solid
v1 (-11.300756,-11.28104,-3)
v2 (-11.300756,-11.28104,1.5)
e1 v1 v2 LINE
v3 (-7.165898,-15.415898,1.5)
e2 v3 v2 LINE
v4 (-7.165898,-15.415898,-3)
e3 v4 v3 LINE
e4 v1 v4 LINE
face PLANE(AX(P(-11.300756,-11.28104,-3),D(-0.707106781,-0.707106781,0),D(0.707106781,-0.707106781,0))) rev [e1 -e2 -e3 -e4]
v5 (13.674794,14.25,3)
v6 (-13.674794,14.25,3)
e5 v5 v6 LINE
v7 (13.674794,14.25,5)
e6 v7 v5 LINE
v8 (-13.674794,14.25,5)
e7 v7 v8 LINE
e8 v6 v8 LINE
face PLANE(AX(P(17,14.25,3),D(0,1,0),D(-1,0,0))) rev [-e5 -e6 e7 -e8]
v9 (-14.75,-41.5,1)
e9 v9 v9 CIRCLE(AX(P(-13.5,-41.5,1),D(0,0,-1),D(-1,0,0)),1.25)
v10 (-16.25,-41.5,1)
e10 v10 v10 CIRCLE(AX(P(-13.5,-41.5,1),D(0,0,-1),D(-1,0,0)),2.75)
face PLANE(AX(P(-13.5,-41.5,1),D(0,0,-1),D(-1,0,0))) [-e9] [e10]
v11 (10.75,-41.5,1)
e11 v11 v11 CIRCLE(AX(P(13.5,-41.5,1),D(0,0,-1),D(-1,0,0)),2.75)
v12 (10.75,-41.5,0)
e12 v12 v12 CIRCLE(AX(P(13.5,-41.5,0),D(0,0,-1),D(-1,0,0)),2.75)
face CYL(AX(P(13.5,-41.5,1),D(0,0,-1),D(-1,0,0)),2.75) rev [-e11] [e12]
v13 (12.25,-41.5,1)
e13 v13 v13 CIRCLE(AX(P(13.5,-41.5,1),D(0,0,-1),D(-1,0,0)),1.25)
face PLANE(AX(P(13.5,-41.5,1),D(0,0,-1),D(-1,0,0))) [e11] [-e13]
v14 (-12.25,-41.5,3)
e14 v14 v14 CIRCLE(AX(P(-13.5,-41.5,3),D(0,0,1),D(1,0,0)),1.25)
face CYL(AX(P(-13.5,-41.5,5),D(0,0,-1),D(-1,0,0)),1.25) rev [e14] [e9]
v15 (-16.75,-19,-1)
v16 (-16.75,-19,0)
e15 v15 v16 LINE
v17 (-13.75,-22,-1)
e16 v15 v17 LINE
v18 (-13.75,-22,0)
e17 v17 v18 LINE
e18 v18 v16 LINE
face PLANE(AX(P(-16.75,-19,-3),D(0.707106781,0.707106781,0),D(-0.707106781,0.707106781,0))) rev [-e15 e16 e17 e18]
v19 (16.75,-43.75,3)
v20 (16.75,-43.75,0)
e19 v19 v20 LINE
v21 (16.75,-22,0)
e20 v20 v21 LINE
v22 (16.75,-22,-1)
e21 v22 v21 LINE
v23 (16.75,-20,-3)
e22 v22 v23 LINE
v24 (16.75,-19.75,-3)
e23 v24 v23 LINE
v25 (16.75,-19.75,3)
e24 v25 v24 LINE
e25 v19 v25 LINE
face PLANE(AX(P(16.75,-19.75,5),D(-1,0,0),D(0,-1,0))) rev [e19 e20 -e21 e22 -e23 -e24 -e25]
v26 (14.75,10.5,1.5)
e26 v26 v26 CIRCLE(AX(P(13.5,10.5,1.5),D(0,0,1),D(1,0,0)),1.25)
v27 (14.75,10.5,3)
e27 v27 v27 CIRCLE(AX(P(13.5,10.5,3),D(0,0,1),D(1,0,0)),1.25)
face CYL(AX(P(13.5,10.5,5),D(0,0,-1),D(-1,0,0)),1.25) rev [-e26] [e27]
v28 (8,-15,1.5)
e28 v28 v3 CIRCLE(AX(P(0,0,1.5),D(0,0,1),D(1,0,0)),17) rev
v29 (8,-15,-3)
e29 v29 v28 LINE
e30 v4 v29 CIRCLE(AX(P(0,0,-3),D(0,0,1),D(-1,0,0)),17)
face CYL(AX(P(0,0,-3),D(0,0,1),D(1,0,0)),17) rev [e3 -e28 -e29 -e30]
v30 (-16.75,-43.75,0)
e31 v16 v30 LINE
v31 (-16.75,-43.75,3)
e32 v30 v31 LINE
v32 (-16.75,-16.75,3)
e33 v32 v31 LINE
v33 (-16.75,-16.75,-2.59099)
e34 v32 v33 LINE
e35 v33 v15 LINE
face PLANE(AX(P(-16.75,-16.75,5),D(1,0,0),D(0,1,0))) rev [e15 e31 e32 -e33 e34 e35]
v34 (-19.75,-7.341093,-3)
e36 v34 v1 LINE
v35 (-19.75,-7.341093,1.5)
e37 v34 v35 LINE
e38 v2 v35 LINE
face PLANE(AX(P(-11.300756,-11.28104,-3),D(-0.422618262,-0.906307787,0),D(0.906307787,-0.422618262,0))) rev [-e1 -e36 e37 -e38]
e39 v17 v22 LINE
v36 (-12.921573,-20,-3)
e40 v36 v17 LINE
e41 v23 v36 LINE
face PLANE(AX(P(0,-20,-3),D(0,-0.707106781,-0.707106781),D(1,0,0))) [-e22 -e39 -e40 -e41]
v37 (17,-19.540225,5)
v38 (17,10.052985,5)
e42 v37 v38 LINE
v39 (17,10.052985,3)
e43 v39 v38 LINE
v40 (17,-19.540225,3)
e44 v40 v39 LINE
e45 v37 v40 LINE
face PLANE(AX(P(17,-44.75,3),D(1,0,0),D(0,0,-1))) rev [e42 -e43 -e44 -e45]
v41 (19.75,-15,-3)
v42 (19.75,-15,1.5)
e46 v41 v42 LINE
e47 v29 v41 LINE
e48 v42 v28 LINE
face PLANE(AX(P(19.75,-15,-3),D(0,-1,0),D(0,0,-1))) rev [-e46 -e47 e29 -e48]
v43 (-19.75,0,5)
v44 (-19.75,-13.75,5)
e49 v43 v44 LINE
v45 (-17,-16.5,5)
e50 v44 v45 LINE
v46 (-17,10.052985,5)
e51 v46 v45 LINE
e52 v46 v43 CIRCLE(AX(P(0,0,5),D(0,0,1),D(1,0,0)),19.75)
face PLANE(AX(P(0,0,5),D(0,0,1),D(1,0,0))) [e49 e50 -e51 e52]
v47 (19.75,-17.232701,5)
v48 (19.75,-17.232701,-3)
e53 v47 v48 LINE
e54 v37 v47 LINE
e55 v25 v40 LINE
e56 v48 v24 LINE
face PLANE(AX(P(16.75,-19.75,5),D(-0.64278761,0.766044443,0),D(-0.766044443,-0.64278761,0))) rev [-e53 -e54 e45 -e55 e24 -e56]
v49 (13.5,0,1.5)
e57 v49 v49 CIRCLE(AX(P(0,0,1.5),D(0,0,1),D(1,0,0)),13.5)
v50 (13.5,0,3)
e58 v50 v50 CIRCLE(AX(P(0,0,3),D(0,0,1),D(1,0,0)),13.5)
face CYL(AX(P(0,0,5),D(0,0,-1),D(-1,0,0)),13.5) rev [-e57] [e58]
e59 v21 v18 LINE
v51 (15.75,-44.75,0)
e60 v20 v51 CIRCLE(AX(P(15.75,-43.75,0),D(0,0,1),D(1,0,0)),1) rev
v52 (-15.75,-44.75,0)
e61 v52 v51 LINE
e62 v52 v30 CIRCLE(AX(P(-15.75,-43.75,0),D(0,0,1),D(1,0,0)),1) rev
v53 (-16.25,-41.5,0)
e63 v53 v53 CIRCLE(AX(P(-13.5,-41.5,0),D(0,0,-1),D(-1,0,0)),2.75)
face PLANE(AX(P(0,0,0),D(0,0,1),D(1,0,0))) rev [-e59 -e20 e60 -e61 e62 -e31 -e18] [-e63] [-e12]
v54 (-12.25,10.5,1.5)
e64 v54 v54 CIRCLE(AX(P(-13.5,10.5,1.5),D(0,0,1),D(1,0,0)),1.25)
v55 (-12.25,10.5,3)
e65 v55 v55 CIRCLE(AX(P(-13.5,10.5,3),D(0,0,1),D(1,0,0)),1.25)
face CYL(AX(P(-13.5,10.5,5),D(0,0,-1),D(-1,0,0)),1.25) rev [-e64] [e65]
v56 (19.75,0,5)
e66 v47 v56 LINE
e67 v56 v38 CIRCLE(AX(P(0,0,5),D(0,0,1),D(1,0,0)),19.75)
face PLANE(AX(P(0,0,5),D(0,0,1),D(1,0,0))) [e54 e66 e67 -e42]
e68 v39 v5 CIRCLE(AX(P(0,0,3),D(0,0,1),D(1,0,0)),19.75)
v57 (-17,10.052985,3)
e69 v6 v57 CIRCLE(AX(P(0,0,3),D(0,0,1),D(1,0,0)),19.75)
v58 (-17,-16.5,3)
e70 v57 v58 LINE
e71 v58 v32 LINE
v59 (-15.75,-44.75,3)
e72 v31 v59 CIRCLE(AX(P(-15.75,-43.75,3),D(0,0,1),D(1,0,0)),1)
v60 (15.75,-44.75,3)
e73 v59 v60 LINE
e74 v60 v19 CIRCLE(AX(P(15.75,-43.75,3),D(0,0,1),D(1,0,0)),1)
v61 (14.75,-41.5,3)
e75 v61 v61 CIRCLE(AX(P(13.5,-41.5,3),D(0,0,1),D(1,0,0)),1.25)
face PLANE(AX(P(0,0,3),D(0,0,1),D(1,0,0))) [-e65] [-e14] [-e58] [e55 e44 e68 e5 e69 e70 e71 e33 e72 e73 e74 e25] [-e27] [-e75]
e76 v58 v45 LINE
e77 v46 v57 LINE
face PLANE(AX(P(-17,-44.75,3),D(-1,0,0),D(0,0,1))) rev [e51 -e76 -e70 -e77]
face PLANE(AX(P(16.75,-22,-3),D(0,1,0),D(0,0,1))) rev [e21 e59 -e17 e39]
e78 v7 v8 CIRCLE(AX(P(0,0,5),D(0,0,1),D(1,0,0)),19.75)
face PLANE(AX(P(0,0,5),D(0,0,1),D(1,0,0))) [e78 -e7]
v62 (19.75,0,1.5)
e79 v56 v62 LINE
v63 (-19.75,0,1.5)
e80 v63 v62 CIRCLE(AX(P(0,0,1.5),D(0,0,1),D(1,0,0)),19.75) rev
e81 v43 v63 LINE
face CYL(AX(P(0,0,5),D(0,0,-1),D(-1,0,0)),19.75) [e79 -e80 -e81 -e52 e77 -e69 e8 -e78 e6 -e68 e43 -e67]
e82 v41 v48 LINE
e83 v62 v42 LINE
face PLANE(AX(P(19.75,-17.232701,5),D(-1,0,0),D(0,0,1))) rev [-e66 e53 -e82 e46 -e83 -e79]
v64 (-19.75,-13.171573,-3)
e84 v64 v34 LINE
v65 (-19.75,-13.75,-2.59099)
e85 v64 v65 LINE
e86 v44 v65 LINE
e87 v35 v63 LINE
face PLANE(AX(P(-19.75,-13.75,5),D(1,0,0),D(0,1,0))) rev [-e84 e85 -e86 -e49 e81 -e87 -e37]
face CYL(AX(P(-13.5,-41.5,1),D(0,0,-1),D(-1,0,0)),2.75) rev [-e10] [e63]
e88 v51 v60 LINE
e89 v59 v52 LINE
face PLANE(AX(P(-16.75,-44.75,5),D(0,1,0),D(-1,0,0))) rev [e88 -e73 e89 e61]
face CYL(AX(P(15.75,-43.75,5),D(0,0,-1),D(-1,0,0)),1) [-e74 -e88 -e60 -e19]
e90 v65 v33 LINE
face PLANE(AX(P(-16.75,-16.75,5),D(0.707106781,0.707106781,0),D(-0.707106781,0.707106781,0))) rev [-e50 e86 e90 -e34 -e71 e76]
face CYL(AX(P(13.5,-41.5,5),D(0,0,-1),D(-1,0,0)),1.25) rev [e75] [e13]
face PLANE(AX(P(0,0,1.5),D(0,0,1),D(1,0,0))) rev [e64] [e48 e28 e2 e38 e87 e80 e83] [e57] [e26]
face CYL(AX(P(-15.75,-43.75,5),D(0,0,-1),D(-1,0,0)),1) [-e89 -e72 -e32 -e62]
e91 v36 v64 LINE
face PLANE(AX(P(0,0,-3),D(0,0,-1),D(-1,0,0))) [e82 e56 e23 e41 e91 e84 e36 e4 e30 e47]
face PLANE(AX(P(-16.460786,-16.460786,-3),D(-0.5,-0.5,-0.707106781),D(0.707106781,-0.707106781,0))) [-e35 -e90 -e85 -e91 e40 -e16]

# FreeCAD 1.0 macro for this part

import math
import FreeCAD as App
import Part
import Sketcher
from FreeCAD import Vector
Q = App.Units.Quantity


def edges_at(feature, points):
    """Names of the edges that pass closest to the given points."""
    edges = feature.Shape.Edges
    near = lambda p: min(range(len(edges)), key=lambda i: edges[i].distToShape(Part.Vertex(*p))[0])
    return sorted({f"Edge{near(p) + 1}" for p in points})

doc = App.newDocument("Part")
body = doc.addObject("PartDesign::Body", "Body")

# Sketch on XY plane
sketch1 = body.newObject("Sketcher::SketchObject", "Sketch")
sketch1.AttachmentSupport = (doc.getObject("XY_Plane"), [""])
sketch1.MapMode = "FlatFace"
sketch1.addGeometry([
    Part.LineSegment(Vector(-16.75, -16.75, 0), Vector(-16.75, -44.75, 0)),  # 0
    Part.LineSegment(Vector(-16.75, -44.75, 0), Vector(16.75, -44.75, 0)),  # 1
    Part.LineSegment(Vector(16.75, -44.75, 0), Vector(16.75, -19.75, 0)),  # 2
    Part.LineSegment(Vector(16.75, -19.75, 0), Vector(19.75, -17.232701, 0)),  # 3
    Part.LineSegment(Vector(19.75, -17.232701, 0), Vector(19.75, 0, 0)),  # 4
    Part.ArcOfCircle(Part.Circle(Vector(0, 0, 0), Vector(0, 0, 1), 19.75), math.radians(0), math.radians(180)),  # 5
    Part.LineSegment(Vector(-19.75, 0, 0), Vector(-19.75, -13.75, 0)),  # 6
    Part.LineSegment(Vector(-19.75, -13.75, 0), Vector(-16.75, -16.75, 0)),  # 7
    Part.Circle(Vector(-13.5, -41.5, 0), Vector(0, 0, 1), 1.25),  # 8
    Part.Circle(Vector(13.5, -41.5, 0), Vector(0, 0, 1), 1.25),  # 9
    Part.Circle(Vector(-13.5, 10.5, 0), Vector(0, 0, 1), 1.25),  # 10
    Part.Circle(Vector(0, 0, 0), Vector(0, 0, 1), 13.5),  # 11
    Part.Circle(Vector(13.5, 10.5, 0), Vector(0, 0, 1), 1.25),  # 12
], False)
sketch1.addConstraint([
    Sketcher.Constraint("Coincident", 0, 2, 1, 1),
    Sketcher.Constraint("Coincident", 1, 2, 2, 1),
    Sketcher.Constraint("Coincident", 2, 2, 3, 1),
    Sketcher.Constraint("Coincident", 3, 2, 4, 1),
    Sketcher.Constraint("Tangent", 4, 2, 5, 1),
    Sketcher.Constraint("Tangent", 5, 2, 6, 1),
    Sketcher.Constraint("Coincident", 6, 2, 7, 1),
    Sketcher.Constraint("Coincident", 7, 2, 0, 1),
    Sketcher.Constraint("Vertical", 0),
    Sketcher.Constraint("Horizontal", 1),
    Sketcher.Constraint("Vertical", 2),
    Sketcher.Constraint("Vertical", 4),
    Sketcher.Constraint("Vertical", 6),
    Sketcher.Constraint("Coincident", 5, 3, -1, 1),
    Sketcher.Constraint("Coincident", 11, 3, -1, 1),
    Sketcher.Constraint("Equal", 8, 9),
    Sketcher.Constraint("Equal", 9, 10),
    Sketcher.Constraint("Equal", 10, 12),
    Sketcher.Constraint("Symmetric", 8, 3, 9, 3, -2),
    Sketcher.Constraint("Symmetric", 10, 3, 12, 3, -2),
    Sketcher.Constraint("Vertical", 8, 3, 10, 3),
    Sketcher.Constraint("Diameter", 11, 27.0),
    Sketcher.Constraint("Diameter", 8, 2.5),
    Sketcher.Constraint("DistanceY", 0, 2, 0, 1, 28.0),
    Sketcher.Constraint("DistanceY", 2, 1, 2, 2, 25.0),
    Sketcher.Constraint("Angle", 3, Q("40 deg")),
    Sketcher.Constraint("Angle", 7, Q("-45 deg")),
    Sketcher.Constraint("Radius", 5, 19.75),
    Sketcher.Constraint("DistanceX", 1, 1, 1, 2, 33.5),
    Sketcher.Constraint("DistanceX", 8, 3, 9, 3, 27.0),
    Sketcher.Constraint("DistanceY", 8, 3, 10, 3, 52.0),
    Sketcher.Constraint("DistanceX", 2, 2, 3, 2, 3.0),
    Sketcher.Constraint("DistanceY", 6, 2, 6, 1, 13.75),
    Sketcher.Constraint("DistanceY", 8, 3, -1, 1, 41.5),
])
pad1 = body.newObject("PartDesign::Pad", "Pad")
pad1.Profile = sketch1
pad1.Length = 5

# Sketch on XY plane
sketch2 = body.newObject("Sketcher::SketchObject", "Sketch001")
sketch2.AttachmentSupport = (doc.getObject("XY_Plane"), [""])
sketch2.MapMode = "FlatFace"
sketch2.addGeometry([
    Part.Circle(Vector(13.5, -41.5, 0), Vector(0, 0, 1), 2.75),
    Part.Circle(Vector(-13.5, -41.5, 0), Vector(0, 0, 1), 2.75),
], False)
sketch2.addConstraint([
    Sketcher.Constraint("Equal", 0, 1),
    Sketcher.Constraint("Symmetric", 0, 3, 1, 3, -2),
    Sketcher.Constraint("Diameter", 0, 5.5),
    Sketcher.Constraint("DistanceX", 1, 3, 0, 3, 27.0),
    Sketcher.Constraint("DistanceY", 0, 3, -1, 1, 41.5),
])
pocket1 = body.newObject("PartDesign::Pocket", "Pocket")
pocket1.Profile = sketch2
pocket1.Length = 1
pocket1.Reversed = True

# Sketch on XY plane
sketch3 = body.newObject("Sketcher::SketchObject", "Sketch002")
sketch3.AttachmentSupport = (doc.getObject("XY_Plane"), [""])
sketch3.MapMode = "FlatFace"
sketch3.AttachmentOffset = App.Placement(Vector(0, 0, 5), App.Rotation())
sketch3.addGeometry([
    Part.LineSegment(Vector(-17, 14.25, 0), Vector(-17, -44.75, 0)),
    Part.LineSegment(Vector(-17, -44.75, 0), Vector(17, -44.75, 0)),
    Part.LineSegment(Vector(17, -44.75, 0), Vector(17, 14.25, 0)),
    Part.LineSegment(Vector(17, 14.25, 0), Vector(-17, 14.25, 0)),
], False)
sketch3.addConstraint([
    Sketcher.Constraint("Coincident", 0, 2, 1, 1),
    Sketcher.Constraint("Coincident", 1, 2, 2, 1),
    Sketcher.Constraint("Coincident", 2, 2, 3, 1),
    Sketcher.Constraint("Coincident", 3, 2, 0, 1),
    Sketcher.Constraint("Vertical", 0),
    Sketcher.Constraint("Horizontal", 1),
    Sketcher.Constraint("Vertical", 2),
    Sketcher.Constraint("Horizontal", 3),
    Sketcher.Constraint("DistanceX", 1, 1, 1, 2, 34.0),
    Sketcher.Constraint("DistanceY", 0, 2, 0, 1, 59.0),
    Sketcher.Constraint("DistanceX", 0, 2, -1, 1, 17.0),
    Sketcher.Constraint("DistanceY", 0, 2, -1, 1, 44.75),
])
pocket2 = body.newObject("PartDesign::Pocket", "Pocket001")
pocket2.Profile = sketch3
pocket2.Length = 2

# Sketch on XY plane
sketch4 = body.newObject("Sketcher::SketchObject", "Sketch003")
sketch4.AttachmentSupport = (doc.getObject("XY_Plane"), [""])
sketch4.MapMode = "FlatFace"
sketch4.addGeometry([
    Part.LineSegment(Vector(16.75, -22, 0), Vector(-13.75, -22, 0)),  # 0
    Part.LineSegment(Vector(-13.75, -22, 0), Vector(-16.75, -19, 0)),  # 1
    Part.LineSegment(Vector(-16.75, -19, 0), Vector(-16.75, -16.75, 0)),  # 2
    Part.LineSegment(Vector(-16.75, -16.75, 0), Vector(-19.75, -13.75, 0)),  # 3
    Part.LineSegment(Vector(-19.75, -13.75, 0), Vector(-19.75, -7.341093, 0)),  # 4
    Part.LineSegment(Vector(-19.75, -7.341093, 0), Vector(-11.300756, -11.28104, 0)),  # 5
    Part.LineSegment(Vector(-11.300756, -11.28104, 0), Vector(-7.165898, -15.415898, 0)),  # 6
    Part.ArcOfCircle(Part.Circle(Vector(0, 0, 0), Vector(0, 0, 1), 17), math.radians(-114.930804), math.radians(-61.927513)),  # 7
    Part.LineSegment(Vector(8, -15, 0), Vector(19.75, -15, 0)),  # 8
    Part.LineSegment(Vector(19.75, -15, 0), Vector(19.75, -17.232701, 0)),  # 9
    Part.LineSegment(Vector(19.75, -17.232701, 0), Vector(16.75, -19.75, 0)),  # 10
    Part.LineSegment(Vector(16.75, -19.75, 0), Vector(16.75, -22, 0)),  # 11
], False)
sketch4.addConstraint([
    Sketcher.Constraint("Coincident", 0, 2, 1, 1),
    Sketcher.Constraint("Coincident", 1, 2, 2, 1),
    Sketcher.Constraint("Coincident", 2, 2, 3, 1),
    Sketcher.Constraint("Coincident", 3, 2, 4, 1),
    Sketcher.Constraint("Coincident", 4, 2, 5, 1),
    Sketcher.Constraint("Coincident", 5, 2, 6, 1),
    Sketcher.Constraint("Coincident", 6, 2, 7, 1),
    Sketcher.Constraint("Coincident", 7, 2, 8, 1),
    Sketcher.Constraint("Coincident", 8, 2, 9, 1),
    Sketcher.Constraint("Coincident", 9, 2, 10, 1),
    Sketcher.Constraint("Coincident", 10, 2, 11, 1),
    Sketcher.Constraint("Coincident", 11, 2, 0, 1),
    Sketcher.Constraint("Horizontal", 0),
    Sketcher.Constraint("Vertical", 2),
    Sketcher.Constraint("Vertical", 4),
    Sketcher.Constraint("Horizontal", 8),
    Sketcher.Constraint("Vertical", 9),
    Sketcher.Constraint("Vertical", 11),
    Sketcher.Constraint("Coincident", 7, 3, -1, 1),
    Sketcher.Constraint("Parallel", 1, 3),
    Sketcher.Constraint("Parallel", 3, 6),
    Sketcher.Constraint("Equal", 2, 11),
    Sketcher.Constraint("Equal", 1, 3),
    Sketcher.Constraint("Radius", 7, 17.0),
    Sketcher.Constraint("Angle", 1, Q("135 deg")),
    Sketcher.Constraint("Angle", 5, Q("-25 deg")),
    Sketcher.Constraint("Angle", 10, Q("-140 deg")),
    Sketcher.Constraint("DistanceX", 0, 2, 0, 1, 30.5),
    Sketcher.Constraint("DistanceY", 0, 2, -1, 1, 22.0),
    Sketcher.Constraint("DistanceY", 1, 2, -1, 1, 19.0),
    Sketcher.Constraint("DistanceX", -1, 1, 7, 2, 8.0),
    Sketcher.Constraint("DistanceX", 10, 2, 9, 2, 3.0),
    Sketcher.Constraint("DistanceX", 8, 1, 8, 2, 11.75),
    Sketcher.Constraint("DistanceY", 2, 1, 2, 2, 2.25),
    Sketcher.Constraint("Distance", 5, 9.322709),
    Sketcher.Constraint("DistanceY", 4, 1, 4, 2, 6.408907),
])
pad2 = body.newObject("PartDesign::Pad", "Pad001")
pad2.Profile = sketch4
pad2.Length = 3
pad2.Reversed = True
doc.recompute()

chamfer = body.newObject("PartDesign::Chamfer", "Chamfer")
chamfer.Base = (pad2, edges_at(pad2, [(1.5, -22, -3), (-15.25, -20.5, -3)]))
chamfer.Size = 2

# Sketch on XY plane
sketch5 = body.newObject("Sketcher::SketchObject", "Sketch004")
sketch5.AttachmentSupport = (doc.getObject("XY_Plane"), [""])
sketch5.MapMode = "FlatFace"
sketch5.addGeometry([
    Part.LineSegment(Vector(19.75, -15, 0), Vector(8, -15, 0)),  # 0
    Part.ArcOfCircle(Part.Circle(Vector(0, 0, 0), Vector(0, 0, 1), 17), math.radians(-114.930804), math.radians(-61.927513)),  # 1
    Part.LineSegment(Vector(-7.165898, -15.415898, 0), Vector(-11.300756, -11.28104, 0)),  # 2
    Part.LineSegment(Vector(-11.300756, -11.28104, 0), Vector(-19.75, -7.341093, 0)),  # 3
    Part.LineSegment(Vector(-19.75, -7.341093, 0), Vector(-19.75, 0, 0)),  # 4
    Part.ArcOfCircle(Part.Circle(Vector(0, 0, 0), Vector(0, 0, 1), 19.75), math.radians(0), math.radians(180)),  # 5
    Part.LineSegment(Vector(19.75, 0, 0), Vector(19.75, -15, 0)),  # 6
], False)
sketch5.addConstraint([
    Sketcher.Constraint("Coincident", 0, 2, 1, 2),
    Sketcher.Constraint("Coincident", 1, 1, 2, 1),
    Sketcher.Constraint("Coincident", 2, 2, 3, 1),
    Sketcher.Constraint("Coincident", 3, 2, 4, 1),
    Sketcher.Constraint("Tangent", 4, 2, 5, 2),
    Sketcher.Constraint("Tangent", 5, 1, 6, 1),
    Sketcher.Constraint("Coincident", 6, 2, 0, 1),
    Sketcher.Constraint("Horizontal", 0),
    Sketcher.Constraint("Vertical", 4),
    Sketcher.Constraint("Vertical", 6),
    Sketcher.Constraint("Coincident", 1, 3, -1, 1),
    Sketcher.Constraint("Coincident", 5, 3, -1, 1),
    Sketcher.Constraint("Radius", 1, 17.0),
    Sketcher.Constraint("DistanceY", 6, 2, 6, 1, 15.0),
    Sketcher.Constraint("Angle", 2, Q("135 deg")),
    Sketcher.Constraint("Angle", 3, Q("155 deg")),
    Sketcher.Constraint("Radius", 5, 19.75),
    Sketcher.Constraint("Distance", 3, 9.322709),
    Sketcher.Constraint("DistanceY", 4, 1, 4, 2, 7.341093),
])
pocket3 = body.newObject("PartDesign::Pocket", "Pocket002")
pocket3.Profile = sketch5
pocket3.Length = 1.5
pocket3.Reversed = True
doc.recompute()

fillet = body.newObject("PartDesign::Fillet", "Fillet")
fillet.Base = (pocket3, edges_at(pocket3, [(16.75, -44.75, 1.5), (-16.75, -44.75, 1.5)]))
fillet.Radius = 1

doc.recompute()
